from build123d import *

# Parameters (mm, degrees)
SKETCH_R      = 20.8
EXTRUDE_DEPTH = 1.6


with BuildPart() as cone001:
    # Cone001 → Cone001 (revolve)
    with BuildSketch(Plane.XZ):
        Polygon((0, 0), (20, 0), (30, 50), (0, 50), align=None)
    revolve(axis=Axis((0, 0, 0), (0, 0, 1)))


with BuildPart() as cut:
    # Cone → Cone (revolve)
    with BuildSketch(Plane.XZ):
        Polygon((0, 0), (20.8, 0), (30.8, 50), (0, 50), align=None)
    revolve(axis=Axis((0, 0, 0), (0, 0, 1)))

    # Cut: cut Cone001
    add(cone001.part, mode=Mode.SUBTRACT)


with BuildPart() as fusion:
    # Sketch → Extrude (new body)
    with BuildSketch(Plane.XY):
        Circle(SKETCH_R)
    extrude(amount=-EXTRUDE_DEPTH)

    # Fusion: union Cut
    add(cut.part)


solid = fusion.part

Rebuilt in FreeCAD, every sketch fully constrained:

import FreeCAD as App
import Part
import Sketcher
from FreeCAD import Vector
Q = App.Units.Quantity

doc = App.newDocument("Part")
body = doc.addObject("PartDesign::Body", "Body")

sketch1 = body.newObject("Sketcher::SketchObject", "Sketch")
sketch1.AttachmentSupport = (doc.getObject("XZ_Plane"), [""])
sketch1.MapMode = "FlatFace"
sketch1.addGeometry(Part.LineSegment(Vector(0, 0, 0), Vector(20, 0, 0)), False)
sketch1.addGeometry(Part.LineSegment(Vector(20, 0, 0), Vector(30, 50, 0)), False)
sketch1.addGeometry(Part.LineSegment(Vector(30, 50, 0), Vector(0, 50, 0)), False)
sketch1.addGeometry(Part.LineSegment(Vector(0, 50, 0), Vector(0, 0, 0)), False)
sketch1.addConstraint(Sketcher.Constraint("Coincident", 0, 2, 1, 1))
sketch1.addConstraint(Sketcher.Constraint("Coincident", 1, 2, 2, 1))
sketch1.addConstraint(Sketcher.Constraint("Coincident", 2, 2, 3, 1))
sketch1.addConstraint(Sketcher.Constraint("Coincident", 3, 2, 0, 1))
sketch1.addConstraint(Sketcher.Constraint("Horizontal", 0))
sketch1.addConstraint(Sketcher.Constraint("Horizontal", 2))
sketch1.addConstraint(Sketcher.Constraint("Vertical", 3))
sketch1.addConstraint(Sketcher.Constraint("Coincident", 3, 2, -1, 1))
sketch1.addConstraint(Sketcher.Constraint("DistanceX", 0, 1, 0, 2, Q("20 mm")))
sketch1.addConstraint(Sketcher.Constraint("DistanceX", 2, 2, 2, 1, Q("30 mm")))
sketch1.addConstraint(Sketcher.Constraint("DistanceY", 3, 2, 3, 1, Q("50 mm")))
revolution = body.newObject("PartDesign::Revolution", "Revolution")
revolution.Profile = sketch1
revolution.ReferenceAxis = (sketch1, ["V_Axis"])
revolution.Angle = 360
body2 = doc.addObject("PartDesign::Body", "Body001")

sketch2 = body2.newObject("Sketcher::SketchObject", "Sketch001")
sketch2.AttachmentSupport = (doc.getObject("XZ_Plane001"), [""])
sketch2.MapMode = "FlatFace"
sketch2.addGeometry(Part.LineSegment(Vector(0, 0, 0), Vector(21, 0, 0)), False)
sketch2.addGeometry(Part.LineSegment(Vector(21, 0, 0), Vector(31, 50, 0)), False)
sketch2.addGeometry(Part.LineSegment(Vector(31, 50, 0), Vector(0, 50, 0)), False)
sketch2.addGeometry(Part.LineSegment(Vector(0, 50, 0), Vector(0, 0, 0)), False)
sketch2.addConstraint(Sketcher.Constraint("Coincident", 0, 2, 1, 1))
sketch2.addConstraint(Sketcher.Constraint("Coincident", 1, 2, 2, 1))
sketch2.addConstraint(Sketcher.Constraint("Coincident", 2, 2, 3, 1))
sketch2.addConstraint(Sketcher.Constraint("Coincident", 3, 2, 0, 1))
sketch2.addConstraint(Sketcher.Constraint("Horizontal", 0))
sketch2.addConstraint(Sketcher.Constraint("Horizontal", 2))
sketch2.addConstraint(Sketcher.Constraint("Vertical", 3))
sketch2.addConstraint(Sketcher.Constraint("Coincident", 3, 2, -1, 1))
sketch2.addConstraint(Sketcher.Constraint("DistanceY", 3, 2, 3, 1, Q("50 mm")))
sketch2.addConstraint(Sketcher.Constraint("DistanceX", 0, 1, 0, 2, Q("20.8 mm")))
sketch2.addConstraint(Sketcher.Constraint("DistanceX", 2, 2, 2, 1, Q("30.8 mm")))
revolution2 = body2.newObject("PartDesign::Revolution", "Revolution001")
revolution2.Profile = sketch2
revolution2.ReferenceAxis = (sketch2, ["V_Axis"])
revolution2.Angle = 360
doc.recompute()

boolean = body2.newObject("PartDesign::Boolean", "Boolean")
boolean.Type = "Cut"
boolean.addObjects([body])
body3 = doc.addObject("PartDesign::Body", "Body002")

sketch3 = body3.newObject("Sketcher::SketchObject", "Sketch002")
sketch3.AttachmentSupport = (doc.getObject("XY_Plane002"), [""])
sketch3.MapMode = "FlatFace"
sketch3.addGeometry(Part.Circle(Vector(0, 0, 0), Vector(0, 0, 1), 21), False)
sketch3.addConstraint(Sketcher.Constraint("Coincident", 0, 3, -1, 1))
sketch3.addConstraint(Sketcher.Constraint("Diameter", 0, Q("41.6 mm")))
pad1 = body3.newObject("PartDesign::Pad", "Pad")
pad1.Profile = sketch3
pad1.Length = 1.6
pad1.Reversed = True
doc.recompute()

boolean2 = body3.newObject("PartDesign::Boolean", "Boolean001")
boolean2.Type = "Fuse"
boolean2.addObjects([body2])

doc.recompute()
